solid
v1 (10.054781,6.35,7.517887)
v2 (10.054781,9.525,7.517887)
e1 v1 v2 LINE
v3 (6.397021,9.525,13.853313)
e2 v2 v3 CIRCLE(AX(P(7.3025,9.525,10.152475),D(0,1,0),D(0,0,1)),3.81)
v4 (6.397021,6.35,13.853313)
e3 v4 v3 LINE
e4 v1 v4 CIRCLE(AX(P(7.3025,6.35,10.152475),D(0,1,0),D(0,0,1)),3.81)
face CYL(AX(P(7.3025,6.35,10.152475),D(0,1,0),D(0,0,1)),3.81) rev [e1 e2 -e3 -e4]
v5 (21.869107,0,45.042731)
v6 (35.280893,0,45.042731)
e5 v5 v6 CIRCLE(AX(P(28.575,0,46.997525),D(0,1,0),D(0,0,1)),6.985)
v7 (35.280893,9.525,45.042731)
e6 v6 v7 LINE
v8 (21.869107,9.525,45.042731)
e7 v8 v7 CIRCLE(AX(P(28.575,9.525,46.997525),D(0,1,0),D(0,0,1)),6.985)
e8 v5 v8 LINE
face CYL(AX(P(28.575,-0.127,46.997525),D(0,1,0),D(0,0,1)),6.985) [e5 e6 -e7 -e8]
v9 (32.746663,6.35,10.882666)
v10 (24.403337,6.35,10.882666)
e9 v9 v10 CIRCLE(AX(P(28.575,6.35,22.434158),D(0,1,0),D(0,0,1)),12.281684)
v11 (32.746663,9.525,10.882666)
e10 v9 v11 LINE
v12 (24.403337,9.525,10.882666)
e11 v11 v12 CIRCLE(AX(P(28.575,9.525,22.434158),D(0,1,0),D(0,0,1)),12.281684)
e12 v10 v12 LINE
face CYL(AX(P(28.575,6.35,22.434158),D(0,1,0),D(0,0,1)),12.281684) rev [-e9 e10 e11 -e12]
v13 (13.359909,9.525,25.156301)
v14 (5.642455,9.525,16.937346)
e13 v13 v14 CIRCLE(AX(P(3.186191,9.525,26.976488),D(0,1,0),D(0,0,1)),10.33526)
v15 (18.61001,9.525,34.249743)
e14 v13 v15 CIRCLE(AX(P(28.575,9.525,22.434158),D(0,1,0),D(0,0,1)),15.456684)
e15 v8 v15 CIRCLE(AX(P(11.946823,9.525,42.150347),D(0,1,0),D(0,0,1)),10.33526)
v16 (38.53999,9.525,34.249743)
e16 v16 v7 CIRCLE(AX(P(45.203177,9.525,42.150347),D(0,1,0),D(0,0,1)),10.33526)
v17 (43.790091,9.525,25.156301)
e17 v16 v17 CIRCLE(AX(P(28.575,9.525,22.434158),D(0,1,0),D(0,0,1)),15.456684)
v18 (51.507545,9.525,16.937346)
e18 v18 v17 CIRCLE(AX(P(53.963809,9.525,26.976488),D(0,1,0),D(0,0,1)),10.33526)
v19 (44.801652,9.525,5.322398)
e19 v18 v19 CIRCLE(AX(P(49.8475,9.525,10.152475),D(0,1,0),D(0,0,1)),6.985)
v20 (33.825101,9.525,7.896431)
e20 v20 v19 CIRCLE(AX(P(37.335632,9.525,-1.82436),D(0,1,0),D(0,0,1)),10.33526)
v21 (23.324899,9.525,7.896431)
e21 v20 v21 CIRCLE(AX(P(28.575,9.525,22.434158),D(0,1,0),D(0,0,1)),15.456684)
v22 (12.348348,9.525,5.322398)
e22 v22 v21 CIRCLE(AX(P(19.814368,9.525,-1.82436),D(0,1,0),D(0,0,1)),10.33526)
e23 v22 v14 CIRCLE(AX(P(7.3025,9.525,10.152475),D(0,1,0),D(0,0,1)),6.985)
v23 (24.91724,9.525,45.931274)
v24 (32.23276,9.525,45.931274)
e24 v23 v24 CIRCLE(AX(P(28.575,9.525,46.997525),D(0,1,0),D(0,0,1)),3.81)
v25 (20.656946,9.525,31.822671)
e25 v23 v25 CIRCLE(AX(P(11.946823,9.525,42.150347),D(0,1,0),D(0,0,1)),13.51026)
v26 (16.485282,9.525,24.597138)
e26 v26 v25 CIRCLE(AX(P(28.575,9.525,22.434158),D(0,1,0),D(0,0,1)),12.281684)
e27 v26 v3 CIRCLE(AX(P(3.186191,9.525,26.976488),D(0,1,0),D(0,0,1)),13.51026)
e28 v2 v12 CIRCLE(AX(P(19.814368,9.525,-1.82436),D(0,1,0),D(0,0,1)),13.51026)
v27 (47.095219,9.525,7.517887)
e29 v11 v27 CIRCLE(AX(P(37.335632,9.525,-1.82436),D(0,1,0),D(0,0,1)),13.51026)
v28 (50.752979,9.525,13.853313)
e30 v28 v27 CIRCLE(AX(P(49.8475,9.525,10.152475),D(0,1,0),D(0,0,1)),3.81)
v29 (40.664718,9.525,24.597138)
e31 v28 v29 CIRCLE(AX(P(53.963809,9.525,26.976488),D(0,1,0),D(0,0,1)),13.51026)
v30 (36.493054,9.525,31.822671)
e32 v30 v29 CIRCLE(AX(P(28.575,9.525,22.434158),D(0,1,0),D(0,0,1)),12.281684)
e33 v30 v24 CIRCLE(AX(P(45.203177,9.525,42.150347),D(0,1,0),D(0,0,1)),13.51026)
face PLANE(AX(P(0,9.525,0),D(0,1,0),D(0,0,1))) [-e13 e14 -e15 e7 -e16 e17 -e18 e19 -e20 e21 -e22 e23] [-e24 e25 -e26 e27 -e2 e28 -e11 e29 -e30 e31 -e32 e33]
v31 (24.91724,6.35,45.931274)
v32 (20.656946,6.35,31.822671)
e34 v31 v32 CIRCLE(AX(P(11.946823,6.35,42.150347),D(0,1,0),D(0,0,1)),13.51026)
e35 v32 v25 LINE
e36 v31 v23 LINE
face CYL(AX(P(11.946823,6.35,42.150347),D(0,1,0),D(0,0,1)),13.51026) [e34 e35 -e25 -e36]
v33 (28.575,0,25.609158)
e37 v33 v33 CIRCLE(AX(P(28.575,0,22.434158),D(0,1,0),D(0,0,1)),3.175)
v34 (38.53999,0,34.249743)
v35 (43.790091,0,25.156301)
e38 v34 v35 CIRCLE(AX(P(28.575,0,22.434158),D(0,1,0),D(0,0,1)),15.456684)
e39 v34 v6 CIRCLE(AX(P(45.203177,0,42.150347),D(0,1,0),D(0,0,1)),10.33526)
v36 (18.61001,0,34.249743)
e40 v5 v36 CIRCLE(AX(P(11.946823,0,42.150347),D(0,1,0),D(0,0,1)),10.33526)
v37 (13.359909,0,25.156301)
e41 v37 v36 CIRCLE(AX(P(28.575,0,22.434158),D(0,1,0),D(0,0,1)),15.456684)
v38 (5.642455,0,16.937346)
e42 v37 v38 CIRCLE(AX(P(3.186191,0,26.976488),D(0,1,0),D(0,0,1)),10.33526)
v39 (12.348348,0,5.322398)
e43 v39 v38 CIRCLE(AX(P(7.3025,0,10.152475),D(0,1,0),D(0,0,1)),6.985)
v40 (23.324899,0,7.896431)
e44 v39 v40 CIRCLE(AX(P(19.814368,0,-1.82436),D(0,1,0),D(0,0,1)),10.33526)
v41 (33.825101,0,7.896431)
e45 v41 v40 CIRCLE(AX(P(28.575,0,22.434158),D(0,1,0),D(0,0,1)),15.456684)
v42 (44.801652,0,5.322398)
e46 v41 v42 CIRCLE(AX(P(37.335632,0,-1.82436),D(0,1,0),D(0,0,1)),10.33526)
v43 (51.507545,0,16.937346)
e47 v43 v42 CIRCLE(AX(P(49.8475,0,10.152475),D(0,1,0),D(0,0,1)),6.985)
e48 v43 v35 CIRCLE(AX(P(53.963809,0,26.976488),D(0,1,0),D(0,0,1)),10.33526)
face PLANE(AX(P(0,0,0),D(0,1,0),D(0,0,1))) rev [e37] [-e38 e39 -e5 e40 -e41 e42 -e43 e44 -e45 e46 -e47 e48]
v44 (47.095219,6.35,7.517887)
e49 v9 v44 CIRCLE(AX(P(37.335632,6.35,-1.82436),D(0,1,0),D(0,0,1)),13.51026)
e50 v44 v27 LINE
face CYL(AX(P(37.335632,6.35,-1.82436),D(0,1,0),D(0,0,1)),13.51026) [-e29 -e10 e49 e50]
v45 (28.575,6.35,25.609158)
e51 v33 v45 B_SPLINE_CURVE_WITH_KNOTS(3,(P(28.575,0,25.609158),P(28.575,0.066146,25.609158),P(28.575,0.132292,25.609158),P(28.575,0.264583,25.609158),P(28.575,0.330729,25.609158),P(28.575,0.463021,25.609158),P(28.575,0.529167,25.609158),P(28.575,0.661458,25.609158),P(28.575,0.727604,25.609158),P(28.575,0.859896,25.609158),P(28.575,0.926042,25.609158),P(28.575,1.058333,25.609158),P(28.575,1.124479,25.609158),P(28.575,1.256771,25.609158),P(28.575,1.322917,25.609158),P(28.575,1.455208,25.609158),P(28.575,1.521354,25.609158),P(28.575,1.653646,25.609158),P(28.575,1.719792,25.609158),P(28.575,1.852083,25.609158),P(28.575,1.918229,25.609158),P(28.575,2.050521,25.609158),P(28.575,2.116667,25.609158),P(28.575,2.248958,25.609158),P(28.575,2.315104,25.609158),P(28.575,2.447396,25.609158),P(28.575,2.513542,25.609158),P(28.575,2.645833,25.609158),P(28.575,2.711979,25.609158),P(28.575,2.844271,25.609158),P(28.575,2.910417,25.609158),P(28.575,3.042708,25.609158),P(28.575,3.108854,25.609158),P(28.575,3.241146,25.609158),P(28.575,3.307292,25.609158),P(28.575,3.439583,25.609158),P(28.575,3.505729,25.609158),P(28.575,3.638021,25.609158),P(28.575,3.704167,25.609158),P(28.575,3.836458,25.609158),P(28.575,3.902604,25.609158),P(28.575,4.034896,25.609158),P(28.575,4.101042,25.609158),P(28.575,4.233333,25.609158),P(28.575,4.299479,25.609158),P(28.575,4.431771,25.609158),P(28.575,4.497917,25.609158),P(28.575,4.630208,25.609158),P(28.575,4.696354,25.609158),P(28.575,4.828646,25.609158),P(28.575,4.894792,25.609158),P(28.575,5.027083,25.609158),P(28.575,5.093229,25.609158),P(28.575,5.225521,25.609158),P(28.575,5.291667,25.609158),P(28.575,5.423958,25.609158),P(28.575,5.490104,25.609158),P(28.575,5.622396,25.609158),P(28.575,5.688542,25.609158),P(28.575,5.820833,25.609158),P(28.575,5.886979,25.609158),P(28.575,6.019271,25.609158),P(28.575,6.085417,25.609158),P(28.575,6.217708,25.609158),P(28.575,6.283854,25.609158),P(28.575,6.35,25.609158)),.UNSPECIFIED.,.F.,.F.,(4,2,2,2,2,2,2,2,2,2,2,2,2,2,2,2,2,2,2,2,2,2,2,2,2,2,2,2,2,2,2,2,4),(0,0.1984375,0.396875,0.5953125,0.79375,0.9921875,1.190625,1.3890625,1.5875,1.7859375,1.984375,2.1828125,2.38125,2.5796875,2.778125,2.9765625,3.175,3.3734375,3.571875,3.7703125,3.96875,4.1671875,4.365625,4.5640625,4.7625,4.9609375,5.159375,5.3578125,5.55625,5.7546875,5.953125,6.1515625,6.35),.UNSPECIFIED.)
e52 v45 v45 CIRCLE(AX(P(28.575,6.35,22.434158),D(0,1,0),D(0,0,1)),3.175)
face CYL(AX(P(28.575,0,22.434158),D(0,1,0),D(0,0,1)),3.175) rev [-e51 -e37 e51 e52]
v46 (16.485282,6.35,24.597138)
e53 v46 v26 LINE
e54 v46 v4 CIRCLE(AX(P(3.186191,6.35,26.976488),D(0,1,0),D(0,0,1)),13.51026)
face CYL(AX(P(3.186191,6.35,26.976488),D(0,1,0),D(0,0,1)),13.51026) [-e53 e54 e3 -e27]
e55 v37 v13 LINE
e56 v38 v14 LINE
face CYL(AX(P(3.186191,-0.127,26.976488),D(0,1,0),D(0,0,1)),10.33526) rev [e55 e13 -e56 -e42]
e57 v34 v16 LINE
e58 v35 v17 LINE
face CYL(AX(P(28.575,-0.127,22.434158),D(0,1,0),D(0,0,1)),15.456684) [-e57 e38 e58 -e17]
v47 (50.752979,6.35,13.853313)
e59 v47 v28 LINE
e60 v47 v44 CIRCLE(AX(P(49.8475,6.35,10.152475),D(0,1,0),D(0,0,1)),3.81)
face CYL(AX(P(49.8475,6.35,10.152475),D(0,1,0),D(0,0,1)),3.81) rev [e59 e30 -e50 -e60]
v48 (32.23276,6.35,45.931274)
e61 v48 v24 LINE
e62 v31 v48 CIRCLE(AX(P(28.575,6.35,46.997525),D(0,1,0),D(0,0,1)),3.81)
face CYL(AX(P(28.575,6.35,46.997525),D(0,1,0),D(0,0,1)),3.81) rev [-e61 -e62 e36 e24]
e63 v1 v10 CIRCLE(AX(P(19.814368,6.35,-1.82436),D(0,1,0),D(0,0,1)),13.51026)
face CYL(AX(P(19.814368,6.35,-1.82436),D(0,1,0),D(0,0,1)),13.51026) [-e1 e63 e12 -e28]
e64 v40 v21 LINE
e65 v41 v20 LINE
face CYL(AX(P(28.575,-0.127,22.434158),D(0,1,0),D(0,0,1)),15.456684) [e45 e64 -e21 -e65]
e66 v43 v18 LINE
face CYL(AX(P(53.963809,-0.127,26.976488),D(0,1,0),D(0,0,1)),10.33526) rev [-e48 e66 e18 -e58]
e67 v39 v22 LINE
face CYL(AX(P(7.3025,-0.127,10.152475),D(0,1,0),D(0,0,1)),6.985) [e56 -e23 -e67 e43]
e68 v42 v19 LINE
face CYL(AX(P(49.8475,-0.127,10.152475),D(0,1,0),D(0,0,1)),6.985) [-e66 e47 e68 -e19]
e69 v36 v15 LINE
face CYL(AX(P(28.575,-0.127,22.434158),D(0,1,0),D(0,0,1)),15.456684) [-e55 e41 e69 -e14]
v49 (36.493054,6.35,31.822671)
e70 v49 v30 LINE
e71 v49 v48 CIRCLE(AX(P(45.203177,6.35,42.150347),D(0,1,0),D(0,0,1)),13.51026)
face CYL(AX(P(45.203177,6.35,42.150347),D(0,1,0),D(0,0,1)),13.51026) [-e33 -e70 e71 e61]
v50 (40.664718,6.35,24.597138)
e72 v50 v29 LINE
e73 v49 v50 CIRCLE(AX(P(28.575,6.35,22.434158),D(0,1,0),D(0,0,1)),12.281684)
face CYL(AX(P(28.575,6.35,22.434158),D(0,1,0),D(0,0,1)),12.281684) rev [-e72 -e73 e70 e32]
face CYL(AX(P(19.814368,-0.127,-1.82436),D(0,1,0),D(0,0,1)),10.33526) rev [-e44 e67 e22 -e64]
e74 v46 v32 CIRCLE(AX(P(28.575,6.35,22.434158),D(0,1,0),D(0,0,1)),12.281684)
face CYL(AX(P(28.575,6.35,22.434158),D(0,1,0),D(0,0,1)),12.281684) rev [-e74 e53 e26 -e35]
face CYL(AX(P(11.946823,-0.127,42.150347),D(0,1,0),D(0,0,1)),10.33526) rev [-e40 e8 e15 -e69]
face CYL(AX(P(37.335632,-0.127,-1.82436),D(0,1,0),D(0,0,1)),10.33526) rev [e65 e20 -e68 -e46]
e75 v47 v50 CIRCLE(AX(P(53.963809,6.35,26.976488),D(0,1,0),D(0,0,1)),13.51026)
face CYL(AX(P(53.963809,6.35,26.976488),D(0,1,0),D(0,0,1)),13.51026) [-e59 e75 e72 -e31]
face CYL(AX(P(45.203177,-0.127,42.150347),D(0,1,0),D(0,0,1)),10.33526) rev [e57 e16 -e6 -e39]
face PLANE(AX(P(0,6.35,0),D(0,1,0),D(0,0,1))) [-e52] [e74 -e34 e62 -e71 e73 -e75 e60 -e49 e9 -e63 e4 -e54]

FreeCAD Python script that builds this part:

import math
import FreeCAD as App
import Part
import Sketcher
from FreeCAD import Vector
Q = App.Units.Quantity


def add_polygon(sketch, points):
    """Adds a closed chain of lines whose ends are joined by coincident constraints."""
    first, n = sketch.GeometryCount, len(points)
    for a, b in zip(points, points[1:] + points[:1]):
        sketch.addGeometry(Part.LineSegment(App.Vector(*a, 0), App.Vector(*b, 0)), False)
    for i in range(n):
        sketch.addConstraint(Sketcher.Constraint("Coincident", first + i, 2, first + (i + 1) % n, 1))

doc = App.newDocument("Part")
body = doc.addObject("PartDesign::Body", "Body")

# Sketch on XZ plane
sketch1 = doc.addObject("Sketcher::SketchObject", "Sketch")
body.addObject(sketch1)
sketch1.AttachmentSupport = (doc.XZ_Plane, [""])
sketch1.MapMode = "FlatFace"
add_polygon(sketch1, [(0, 0), (0, 57), (57, 57), (57, 0)])  # lines 0-3
sketch1.addConstraint(Sketcher.Constraint("Vertical", 0))
sketch1.addConstraint(Sketcher.Constraint("Horizontal", 1))
sketch1.addConstraint(Sketcher.Constraint("Vertical", 2))
sketch1.addConstraint(Sketcher.Constraint("Horizontal", 3))
sketch1.addConstraint(Sketcher.Constraint("Coincident", 3, 2, -1, 1))
sketch1.addConstraint(Sketcher.Constraint("Equal", 3, 0))
sketch1.addConstraint(Sketcher.Constraint("DistanceX", 1, 1, 1, 2, Q("2.25 in")))
pad1 = doc.addObject("PartDesign::Pad", "Pad")
body.addObject(pad1)
pad1.Profile = sketch1
pad1.Length = Q("0.375 in")
pad1.Reversed = True

# Sketch on XZ plane
sketch2 = doc.addObject("Sketcher::SketchObject", "Sketch001")
body.addObject(sketch2)
sketch2.AttachmentSupport = (doc.XZ_Plane, [""])
sketch2.MapMode = "FlatFace"
sketch2.AttachmentOffset = App.Placement(Vector(0, 0, -0.375 * 25.4), App.Rotation())
sketch2.addGeometry(Part.ArcOfCircle(Part.Circle(Vector(45.2, 42.2, 0), Vector(0, 0, 1), 13.5), math.radians(164), math.radians(230)), False)
sketch2.addGeometry(Part.ArcOfCircle(Part.Circle(Vector(28.6, 22.4, 0), Vector(0, 0, 1), 12.3), math.radians(10), math.radians(50)), False)
sketch2.addGeometry(Part.ArcOfCircle(Part.Circle(Vector(54, 27, 0), Vector(0, 0, 1), 13.5), math.radians(-170), math.radians(-104)), False)
sketch2.addGeometry(Part.ArcOfCircle(Part.Circle(Vector(49.8, 10.2, 0), Vector(0, 0, 1), 3.8), math.radians(-136), math.radians(76)), False)
sketch2.addGeometry(Part.ArcOfCircle(Part.Circle(Vector(37.3, -1.8, 0), Vector(0, 0, 1), 13.5), math.radians(44), math.radians(110)), False)
sketch2.addGeometry(Part.ArcOfCircle(Part.Circle(Vector(28.6, 22.4, 0), Vector(0, 0, 1), 12.3), math.radians(-110), math.radians(-70)), False)
sketch2.addGeometry(Part.ArcOfCircle(Part.Circle(Vector(19.8, -1.8, 0), Vector(0, 0, 1), 13.5), math.radians(70), math.radians(136)), False)
sketch2.addGeometry(Part.ArcOfCircle(Part.Circle(Vector(7.3, 10.2, 0), Vector(0, 0, 1), 3.8), math.radians(104), math.radians(316)), False)
sketch2.addGeometry(Part.ArcOfCircle(Part.Circle(Vector(3.2, 27, 0), Vector(0, 0, 1), 13.5), math.radians(-76), math.radians(-10)), False)
sketch2.addGeometry(Part.ArcOfCircle(Part.Circle(Vector(28.6, 22.4, 0), Vector(0, 0, 1), 12.3), math.radians(130), math.radians(170)), False)
sketch2.addGeometry(Part.ArcOfCircle(Part.Circle(Vector(11.9, 42.2, 0), Vector(0, 0, 1), 13.5), math.radians(-50), math.radians(16)), False)
sketch2.addGeometry(Part.ArcOfCircle(Part.Circle(Vector(28.6, 47, 0), Vector(0, 0, 1), 3.8), math.radians(-16), math.radians(196)), False)
sketch2.addConstraint(Sketcher.Constraint("Tangent", 0, 2, 1, 2))
sketch2.addConstraint(Sketcher.Constraint("Tangent", 1, 1, 2, 1))
sketch2.addConstraint(Sketcher.Constraint("Tangent", 2, 2, 3, 2))
sketch2.addConstraint(Sketcher.Constraint("Tangent", 3, 1, 4, 1))
sketch2.addConstraint(Sketcher.Constraint("Tangent", 4, 2, 5, 2))
sketch2.addConstraint(Sketcher.Constraint("Tangent", 5, 1, 6, 1))
sketch2.addConstraint(Sketcher.Constraint("Tangent", 6, 2, 7, 2))
sketch2.addConstraint(Sketcher.Constraint("Tangent", 7, 1, 8, 1))
sketch2.addConstraint(Sketcher.Constraint("Tangent", 8, 2, 9, 2))
sketch2.addConstraint(Sketcher.Constraint("Tangent", 9, 1, 10, 1))
sketch2.addConstraint(Sketcher.Constraint("Tangent", 10, 2, 11, 2))
sketch2.addConstraint(Sketcher.Constraint("Tangent", 11, 1, 0, 1))
sketch2.addConstraint(Sketcher.Constraint("Coincident", 5, 3, 1, 3))
sketch2.addConstraint(Sketcher.Constraint("Coincident", 9, 3, 1, 3))
sketch2.addConstraint(Sketcher.Constraint("Equal", 0, 2))
sketch2.addConstraint(Sketcher.Constraint("Equal", 2, 4))
sketch2.addConstraint(Sketcher.Constraint("Equal", 1, 5))
sketch2.addConstraint(Sketcher.Constraint("Equal", 4, 6))
sketch2.addConstraint(Sketcher.Constraint("Equal", 3, 7))
sketch2.addConstraint(Sketcher.Constraint("Equal", 6, 8))
sketch2.addConstraint(Sketcher.Constraint("Equal", 5, 9))
sketch2.addConstraint(Sketcher.Constraint("Equal", 8, 10))
sketch2.addConstraint(Sketcher.Constraint("Equal", 7, 11))
sketch2.addConstraint(Sketcher.Constraint("Horizontal", 4, 3, 6, 3))
sketch2.addConstraint(Sketcher.Constraint("Horizontal", 3, 3, 7, 3))
sketch2.addConstraint(Sketcher.Constraint("Horizontal", 0, 3, 10, 3))
sketch2.addConstraint(Sketcher.Constraint("Radius", 3, Q("0.15 in")))
sketch2.addConstraint(Sketcher.Constraint("Radius", 0, Q("0.5319 in")))
sketch2.addConstraint(Sketcher.Constraint("DistanceX", -1, 1, 1, 3, Q("1.125 in")))
sketch2.addConstraint(Sketcher.Constraint("DistanceX", 7, 3, 3, 3, Q("1.675 in")))
sketch2.addConstraint(Sketcher.Constraint("Radius", 1, 12.281684))
sketch2.addConstraint(Sketcher.Constraint("DistanceX", 1, 1, 3, 1, 6.430502))
sketch2.addConstraint(Sketcher.Constraint("DistanceY", -1, 1, 1, 3, 22.434158))
sketch2.addConstraint(Sketcher.Constraint("DistanceY", -1, 1, 0, 2, 31.822671))
pocket1 = doc.addObject("PartDesign::Pocket", "Pocket")
body.addObject(pocket1)
pocket1.Profile = sketch2
pocket1.Length = Q("0.125 in")
pocket1.Reversed = True

# Sketch on XZ plane
sketch3 = doc.addObject("Sketcher::SketchObject", "Sketch002")
body.addObject(sketch3)
sketch3.AttachmentSupport = (doc.XZ_Plane, [""])
sketch3.MapMode = "FlatFace"
sketch3.AttachmentOffset = App.Placement(Vector(0, 0, -0.375 * 25.4), App.Rotation())
add_polygon(sketch3, [(0, 0), (0, 57), (57, 57), (57, 0)])  # lines 0-3
sketch3.addGeometry(Part.ArcOfCircle(Part.Circle(Vector(7, 10, 0), Vector(0, 0, 1), 7), math.radians(104), math.radians(316)), False)  # 4
sketch3.addGeometry(Part.ArcOfCircle(Part.Circle(Vector(20, -2, 0), Vector(0, 0, 1), 10), math.radians(70), math.radians(136)), False)  # 5
sketch3.addGeometry(Part.ArcOfCircle(Part.Circle(Vector(29, 22, 0), Vector(0, 0, 1), 15), math.radians(-110), math.radians(-70)), False)  # 6
sketch3.addGeometry(Part.ArcOfCircle(Part.Circle(Vector(37, -2, 0), Vector(0, 0, 1), 10), math.radians(44), math.radians(110)), False)  # 7
sketch3.addGeometry(Part.ArcOfCircle(Part.Circle(Vector(50, 10, 0), Vector(0, 0, 1), 7), math.radians(-136), math.radians(76)), False)  # 8
sketch3.addGeometry(Part.ArcOfCircle(Part.Circle(Vector(54, 27, 0), Vector(0, 0, 1), 10), math.radians(-170), math.radians(-104)), False)  # 9
sketch3.addGeometry(Part.ArcOfCircle(Part.Circle(Vector(29, 22, 0), Vector(0, 0, 1), 15), math.radians(10), math.radians(50)), False)  # 10
sketch3.addGeometry(Part.ArcOfCircle(Part.Circle(Vector(45, 42, 0), Vector(0, 0, 1), 10), math.radians(164), math.radians(230)), False)  # 11
sketch3.addGeometry(Part.ArcOfCircle(Part.Circle(Vector(29, 47, 0), Vector(0, 0, 1), 7), math.radians(-16), math.radians(196)), False)  # 12
sketch3.addGeometry(Part.ArcOfCircle(Part.Circle(Vector(12, 42, 0), Vector(0, 0, 1), 10), math.radians(-50), math.radians(16)), False)  # 13
sketch3.addGeometry(Part.ArcOfCircle(Part.Circle(Vector(29, 22, 0), Vector(0, 0, 1), 15), math.radians(130), math.radians(170)), False)  # 14
sketch3.addGeometry(Part.ArcOfCircle(Part.Circle(Vector(3, 27, 0), Vector(0, 0, 1), 10), math.radians(-76), math.radians(-10)), False)  # 15
sketch3.addConstraint(Sketcher.Constraint("Tangent", 4, 2, 5, 2))
sketch3.addConstraint(Sketcher.Constraint("Tangent", 5, 1, 6, 1))
sketch3.addConstraint(Sketcher.Constraint("Tangent", 6, 2, 7, 2))
sketch3.addConstraint(Sketcher.Constraint("Tangent", 7, 1, 8, 1))
sketch3.addConstraint(Sketcher.Constraint("Tangent", 8, 2, 9, 2))
sketch3.addConstraint(Sketcher.Constraint("Tangent", 9, 1, 10, 1))
sketch3.addConstraint(Sketcher.Constraint("Tangent", 10, 2, 11, 2))
sketch3.addConstraint(Sketcher.Constraint("Tangent", 11, 1, 12, 1))
sketch3.addConstraint(Sketcher.Constraint("Tangent", 12, 2, 13, 2))
sketch3.addConstraint(Sketcher.Constraint("Tangent", 13, 1, 14, 1))
sketch3.addConstraint(Sketcher.Constraint("Tangent", 14, 2, 15, 2))
sketch3.addConstraint(Sketcher.Constraint("Tangent", 15, 1, 4, 1))
sketch3.addConstraint(Sketcher.Constraint("Vertical", 0))
sketch3.addConstraint(Sketcher.Constraint("Horizontal", 1))
sketch3.addConstraint(Sketcher.Constraint("Vertical", 2))
sketch3.addConstraint(Sketcher.Constraint("Horizontal", 3))
sketch3.addConstraint(Sketcher.Constraint("Coincident", 3, 2, -1, 1))
sketch3.addConstraint(Sketcher.Constraint("Coincident", 10, 3, 6, 3))
sketch3.addConstraint(Sketcher.Constraint("Coincident", 14, 3, 6, 3))
sketch3.addConstraint(Sketcher.Constraint("Equal", 5, 7))
sketch3.addConstraint(Sketcher.Constraint("Equal", 4, 8))
sketch3.addConstraint(Sketcher.Constraint("Equal", 7, 9))
sketch3.addConstraint(Sketcher.Constraint("Equal", 6, 10))
sketch3.addConstraint(Sketcher.Constraint("Equal", 9, 11))
sketch3.addConstraint(Sketcher.Constraint("Equal", 8, 12))
sketch3.addConstraint(Sketcher.Constraint("Equal", 11, 13))
sketch3.addConstraint(Sketcher.Constraint("Equal", 10, 14))
sketch3.addConstraint(Sketcher.Constraint("Equal", 13, 15))
sketch3.addConstraint(Sketcher.Constraint("Horizontal", 5, 3, 7, 3))
sketch3.addConstraint(Sketcher.Constraint("Horizontal", 4, 3, 8, 3))
sketch3.addConstraint(Sketcher.Constraint("Horizontal", 11, 3, 13, 3))
sketch3.addConstraint(Sketcher.Constraint("Equal", 3, 0))
sketch3.addConstraint(Sketcher.Constraint("Radius", 4, Q("0.275 in")))
sketch3.addConstraint(Sketcher.Constraint("DistanceX", 1, 1, 1, 2, Q("2.25 in")))
sketch3.addConstraint(Sketcher.Constraint("Radius", 5, Q("0.4069 in")))
sketch3.addConstraint(Sketcher.Constraint("DistanceX", -1, 1, 6, 3, Q("1.125 in")))
sketch3.addConstraint(Sketcher.Constraint("DistanceX", 4, 3, 8, 3, Q("1.675 in")))
sketch3.addConstraint(Sketcher.Constraint("Radius", 6, 15.456684))
sketch3.addConstraint(Sketcher.Constraint("DistanceX", -1, 1, 5, 1, 23.324899))
sketch3.addConstraint(Sketcher.Constraint("DistanceY", -1, 1, 9, 1, 25.156301))
sketch3.addConstraint(Sketcher.Constraint("DistanceX", 10, 2, 9, 1, 5.250101))
pocket2 = doc.addObject("PartDesign::Pocket", "Pocket001")
body.addObject(pocket2)
pocket2.Profile = sketch3
pocket2.Length = Q("0.38 in")
pocket2.Reversed = True

# Sketch on XZ plane
sketch4 = doc.addObject("Sketcher::SketchObject", "Sketch003")
body.addObject(sketch4)
sketch4.AttachmentSupport = (doc.XZ_Plane, [""])
sketch4.MapMode = "FlatFace"
sketch4.AttachmentOffset = App.Placement(Vector(0, 0, -0.25 * 25.4), App.Rotation())
sketch4.addGeometry(Part.Circle(Vector(28.6, 22.4, 0), Vector(0, 0, 1), 3.2), False)
sketch4.addConstraint(Sketcher.Constraint("Diameter", 0, Q("0.25 in")))
sketch4.addConstraint(Sketcher.Constraint("DistanceX", -1, 1, 0, 3, Q("1.125 in")))
sketch4.addConstraint(Sketcher.Constraint("DistanceY", -1, 1, 0, 3, 22.434158))
pocket3 = doc.addObject("PartDesign::Pocket", "Pocket002")
body.addObject(pocket3)
pocket3.Profile = sketch4
pocket3.Type = "ThroughAll"
pocket3.Reversed = True

doc.recompute()
